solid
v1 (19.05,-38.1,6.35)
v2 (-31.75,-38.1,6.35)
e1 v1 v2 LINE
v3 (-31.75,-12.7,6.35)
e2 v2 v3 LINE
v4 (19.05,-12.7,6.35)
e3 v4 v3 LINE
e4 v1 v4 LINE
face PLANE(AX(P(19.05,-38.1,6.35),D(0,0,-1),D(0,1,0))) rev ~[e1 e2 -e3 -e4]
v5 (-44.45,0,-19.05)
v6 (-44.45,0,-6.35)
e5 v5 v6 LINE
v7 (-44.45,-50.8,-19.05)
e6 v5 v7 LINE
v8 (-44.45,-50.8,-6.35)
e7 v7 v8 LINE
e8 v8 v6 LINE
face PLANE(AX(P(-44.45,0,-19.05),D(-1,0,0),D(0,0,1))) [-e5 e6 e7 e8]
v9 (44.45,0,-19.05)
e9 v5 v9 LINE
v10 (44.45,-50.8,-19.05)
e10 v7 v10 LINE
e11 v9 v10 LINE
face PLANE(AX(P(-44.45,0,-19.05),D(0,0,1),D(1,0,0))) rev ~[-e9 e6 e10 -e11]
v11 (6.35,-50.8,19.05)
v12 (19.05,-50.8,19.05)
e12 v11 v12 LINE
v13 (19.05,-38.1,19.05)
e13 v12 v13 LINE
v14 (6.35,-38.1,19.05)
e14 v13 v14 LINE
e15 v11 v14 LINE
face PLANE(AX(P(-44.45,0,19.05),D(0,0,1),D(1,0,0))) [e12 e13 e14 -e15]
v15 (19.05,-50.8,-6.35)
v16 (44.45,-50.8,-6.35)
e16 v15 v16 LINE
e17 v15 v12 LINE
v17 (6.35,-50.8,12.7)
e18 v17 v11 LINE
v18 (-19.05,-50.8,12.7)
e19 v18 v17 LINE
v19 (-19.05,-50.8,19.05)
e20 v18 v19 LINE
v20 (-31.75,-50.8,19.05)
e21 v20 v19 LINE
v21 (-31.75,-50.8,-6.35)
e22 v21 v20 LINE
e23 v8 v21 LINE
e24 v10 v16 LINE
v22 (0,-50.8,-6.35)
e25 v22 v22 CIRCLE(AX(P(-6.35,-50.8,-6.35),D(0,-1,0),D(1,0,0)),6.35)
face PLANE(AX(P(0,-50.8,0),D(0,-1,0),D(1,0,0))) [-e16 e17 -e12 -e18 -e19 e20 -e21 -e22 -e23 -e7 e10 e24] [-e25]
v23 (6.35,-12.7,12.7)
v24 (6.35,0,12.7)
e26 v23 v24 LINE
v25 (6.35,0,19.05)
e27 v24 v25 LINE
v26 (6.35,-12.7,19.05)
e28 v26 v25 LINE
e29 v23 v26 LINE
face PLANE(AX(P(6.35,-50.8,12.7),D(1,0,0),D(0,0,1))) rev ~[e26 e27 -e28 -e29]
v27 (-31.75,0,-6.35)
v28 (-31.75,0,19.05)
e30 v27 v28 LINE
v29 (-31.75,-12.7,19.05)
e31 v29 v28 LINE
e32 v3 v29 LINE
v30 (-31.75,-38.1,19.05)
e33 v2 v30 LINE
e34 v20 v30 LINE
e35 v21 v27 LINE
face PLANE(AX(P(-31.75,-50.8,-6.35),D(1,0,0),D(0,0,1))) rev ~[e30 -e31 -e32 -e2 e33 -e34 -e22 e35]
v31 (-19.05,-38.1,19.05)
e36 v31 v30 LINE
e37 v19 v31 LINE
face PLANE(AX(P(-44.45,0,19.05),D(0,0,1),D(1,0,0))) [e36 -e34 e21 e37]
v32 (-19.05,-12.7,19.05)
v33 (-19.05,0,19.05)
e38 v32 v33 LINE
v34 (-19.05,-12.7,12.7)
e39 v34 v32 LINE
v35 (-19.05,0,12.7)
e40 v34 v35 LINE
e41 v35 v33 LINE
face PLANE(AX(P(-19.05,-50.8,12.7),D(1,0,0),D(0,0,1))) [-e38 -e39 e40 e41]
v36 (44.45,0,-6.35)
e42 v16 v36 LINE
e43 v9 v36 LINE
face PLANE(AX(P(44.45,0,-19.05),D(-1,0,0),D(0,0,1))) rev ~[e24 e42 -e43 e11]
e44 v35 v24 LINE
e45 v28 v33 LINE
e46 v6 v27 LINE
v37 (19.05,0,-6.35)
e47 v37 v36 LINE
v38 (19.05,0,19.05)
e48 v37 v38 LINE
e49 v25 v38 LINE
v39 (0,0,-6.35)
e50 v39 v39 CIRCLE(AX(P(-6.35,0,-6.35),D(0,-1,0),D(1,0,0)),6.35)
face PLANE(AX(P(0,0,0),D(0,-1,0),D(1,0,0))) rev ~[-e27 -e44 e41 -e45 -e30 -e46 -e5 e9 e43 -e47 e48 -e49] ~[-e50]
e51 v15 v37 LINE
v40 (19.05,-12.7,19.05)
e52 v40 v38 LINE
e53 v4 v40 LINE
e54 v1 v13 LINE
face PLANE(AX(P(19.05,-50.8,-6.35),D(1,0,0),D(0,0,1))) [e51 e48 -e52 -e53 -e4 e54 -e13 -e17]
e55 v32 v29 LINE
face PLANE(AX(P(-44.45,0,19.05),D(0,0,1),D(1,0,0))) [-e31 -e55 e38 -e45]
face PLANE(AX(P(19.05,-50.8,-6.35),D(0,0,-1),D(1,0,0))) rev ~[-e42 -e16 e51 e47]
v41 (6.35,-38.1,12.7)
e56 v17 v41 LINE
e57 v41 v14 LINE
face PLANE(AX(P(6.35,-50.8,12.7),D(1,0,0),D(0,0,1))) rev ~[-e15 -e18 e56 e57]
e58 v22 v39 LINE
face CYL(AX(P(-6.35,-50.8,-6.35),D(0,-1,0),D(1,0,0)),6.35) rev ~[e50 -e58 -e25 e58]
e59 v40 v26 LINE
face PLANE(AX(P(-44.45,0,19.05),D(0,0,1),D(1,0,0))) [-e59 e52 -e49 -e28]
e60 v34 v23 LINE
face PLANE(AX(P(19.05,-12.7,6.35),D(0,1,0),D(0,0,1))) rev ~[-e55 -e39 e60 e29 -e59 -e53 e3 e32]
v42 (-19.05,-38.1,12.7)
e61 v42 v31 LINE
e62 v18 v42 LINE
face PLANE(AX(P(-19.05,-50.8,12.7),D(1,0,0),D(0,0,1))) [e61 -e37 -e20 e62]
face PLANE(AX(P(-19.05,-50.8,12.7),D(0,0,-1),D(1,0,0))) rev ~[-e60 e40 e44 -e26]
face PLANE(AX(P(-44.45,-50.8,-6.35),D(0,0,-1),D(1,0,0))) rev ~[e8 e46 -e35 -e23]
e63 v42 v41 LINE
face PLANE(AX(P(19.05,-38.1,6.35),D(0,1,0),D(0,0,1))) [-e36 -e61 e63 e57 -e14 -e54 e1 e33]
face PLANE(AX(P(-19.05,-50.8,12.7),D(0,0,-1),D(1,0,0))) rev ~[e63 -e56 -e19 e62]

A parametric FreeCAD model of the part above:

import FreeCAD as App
import Part
import Sketcher

V = App.Vector
Q = App.Units.Quantity

doc = App.newDocument("Part")
body = doc.addObject("PartDesign::Body", "Body")

sketch1 = body.newObject("Sketcher::SketchObject", "Sketch")
sketch1.AttachmentSupport = (doc.getObject("XZ_Plane"), [""])
sketch1.MapMode = "FlatFace"
sketch1.addGeometry(Part.LineSegment(V(-44.45, 19.05, 0), V(-44.45, -19.05, 0)), False)
sketch1.addGeometry(Part.LineSegment(V(-44.45, -19.05, 0), V(44.45, -19.05, 0)), False)
sketch1.addGeometry(Part.LineSegment(V(44.45, -19.05, 0), V(44.45, 19.05, 0)), False)
sketch1.addGeometry(Part.LineSegment(V(44.45, 19.05, 0), V(-44.45, 19.05, 0)), False)
sketch1.addConstraint(Sketcher.Constraint("Coincident", 0, 2, 1, 1))
sketch1.addConstraint(Sketcher.Constraint("Coincident", 1, 2, 2, 1))
sketch1.addConstraint(Sketcher.Constraint("Coincident", 2, 2, 3, 1))
sketch1.addConstraint(Sketcher.Constraint("Coincident", 3, 2, 0, 1))
sketch1.addConstraint(Sketcher.Constraint("Vertical", 0))
sketch1.addConstraint(Sketcher.Constraint("Horizontal", 1))
sketch1.addConstraint(Sketcher.Constraint("Vertical", 2))
sketch1.addConstraint(Sketcher.Constraint("Horizontal", 3))
sketch1.addConstraint(Sketcher.Constraint("Symmetric", 0, 2, 2, 2, -1, 1))
sketch1.addConstraint(Sketcher.Constraint("DistanceX", 1, 1, 1, 2, Q("3.5 in")))
sketch1.addConstraint(Sketcher.Constraint("DistanceY", 0, 2, 0, 1, Q("1.5 in")))
pad1 = body.newObject("PartDesign::Pad", "Pad")
pad1.Profile = sketch1
pad1.Length = Q("2 in")

sketch2 = body.newObject("Sketcher::SketchObject", "Sketch001")
sketch2.AttachmentSupport = (doc.getObject("XZ_Plane"), [""])
sketch2.MapMode = "FlatFace"
sketch2.AttachmentOffset = App.Placement(V(0, 0, 2 * 25.4), App.Rotation())
sketch2.addGeometry(Part.LineSegment(V(-44.45, 19.05, 0), V(-44.45, -6.35, 0)), False)
sketch2.addGeometry(Part.LineSegment(V(-44.45, -6.35, 0), V(-31.75, -6.35, 0)), False)
sketch2.addGeometry(Part.LineSegment(V(-31.75, -6.35, 0), V(-31.75, 19.05, 0)), False)
sketch2.addGeometry(Part.LineSegment(V(-31.75, 19.05, 0), V(-44.45, 19.05, 0)), False)
sketch2.addConstraint(Sketcher.Constraint("Coincident", 0, 2, 1, 1))
sketch2.addConstraint(Sketcher.Constraint("Coincident", 1, 2, 2, 1))
sketch2.addConstraint(Sketcher.Constraint("Coincident", 2, 2, 3, 1))
sketch2.addConstraint(Sketcher.Constraint("Coincident", 3, 2, 0, 1))
sketch2.addConstraint(Sketcher.Constraint("Vertical", 0))
sketch2.addConstraint(Sketcher.Constraint("Horizontal", 1))
sketch2.addConstraint(Sketcher.Constraint("Vertical", 2))
sketch2.addConstraint(Sketcher.Constraint("Horizontal", 3))
sketch2.addConstraint(Sketcher.Constraint("DistanceY", 0, 2, 0, 1, Q("1 in")))
sketch2.addConstraint(Sketcher.Constraint("DistanceX", 1, 1, 1, 2, Q("0.5 in")))
sketch2.addConstraint(Sketcher.Constraint("DistanceX", 0, 2, -1, 1, Q("1.75 in")))
sketch2.addConstraint(Sketcher.Constraint("DistanceY", 0, 2, -1, 1, Q("0.25 in")))
pocket1 = body.newObject("PartDesign::Pocket", "Pocket")
pocket1.Profile = sketch2
pocket1.Length = Q("2 in")

sketch3 = body.newObject("Sketcher::SketchObject", "Sketch002")
sketch3.AttachmentSupport = (doc.getObject("XZ_Plane"), [""])
sketch3.MapMode = "FlatFace"
sketch3.AttachmentOffset = App.Placement(V(0, 0, 2 * 25.4), App.Rotation())
sketch3.addGeometry(Part.LineSegment(V(-19.05, 19.05, 0), V(-19.05, 12.7, 0)), False)
sketch3.addGeometry(Part.LineSegment(V(-19.05, 12.7, 0), V(6.35, 12.7, 0)), False)
sketch3.addGeometry(Part.LineSegment(V(6.35, 12.7, 0), V(6.35, 19.05, 0)), False)
sketch3.addGeometry(Part.LineSegment(V(6.35, 19.05, 0), V(-19.05, 19.05, 0)), False)
sketch3.addConstraint(Sketcher.Constraint("Coincident", 0, 2, 1, 1))
sketch3.addConstraint(Sketcher.Constraint("Coincident", 1, 2, 2, 1))
sketch3.addConstraint(Sketcher.Constraint("Coincident", 2, 2, 3, 1))
sketch3.addConstraint(Sketcher.Constraint("Coincident", 3, 2, 0, 1))
sketch3.addConstraint(Sketcher.Constraint("Vertical", 0))
sketch3.addConstraint(Sketcher.Constraint("Horizontal", 1))
sketch3.addConstraint(Sketcher.Constraint("Vertical", 2))
sketch3.addConstraint(Sketcher.Constraint("Horizontal", 3))
sketch3.addConstraint(Sketcher.Constraint("DistanceX", 1, 1, 1, 2, Q("1 in")))
sketch3.addConstraint(Sketcher.Constraint("DistanceY", 0, 2, 0, 1, Q("0.25 in")))
sketch3.addConstraint(Sketcher.Constraint("DistanceY", -1, 1, 0, 2, Q("0.5 in")))
sketch3.addConstraint(Sketcher.Constraint("DistanceX", 0, 2, -1, 1, Q("0.75 in")))
pocket2 = body.newObject("PartDesign::Pocket", "Pocket001")
pocket2.Profile = sketch3
pocket2.Length = Q("2 in")

sketch4 = body.newObject("Sketcher::SketchObject", "Sketch003")
sketch4.AttachmentSupport = (doc.getObject("XZ_Plane"), [""])
sketch4.MapMode = "FlatFace"
sketch4.AttachmentOffset = App.Placement(V(0, 0, 2 * 25.4), App.Rotation())
sketch4.addGeometry(Part.Circle(V(-6.35, -6.35, 0), V(0, 0, 1), 6.35), False)
sketch4.addConstraint(Sketcher.Constraint("Diameter", 0, Q("0.5 in")))
sketch4.addConstraint(Sketcher.Constraint("DistanceX", 0, 3, -1, 1, Q("0.25 in")))
sketch4.addConstraint(Sketcher.Constraint("DistanceY", 0, 3, -1, 1, Q("0.25 in")))
pad2 = body.newObject("PartDesign::Pad", "Pad001")
pad2.Profile = sketch4
pad2.Length = Q("2 in")

sketch5 = body.newObject("Sketcher::SketchObject", "Sketch004")
sketch5.AttachmentSupport = (doc.getObject("XZ_Plane"), [""])
sketch5.MapMode = "FlatFace"
sketch5.AttachmentOffset = App.Placement(V(0, 0, 4 * 25.4), App.Rotation())
sketch5.addGeometry(Part.Circle(V(-6.35, -6.35, 0), V(0, 0, 1), 6.35), False)
sketch5.addConstraint(Sketcher.Constraint("Diameter", 0, Q("0.5 in")))
sketch5.addConstraint(Sketcher.Constraint("DistanceX", 0, 3, -1, 1, Q("0.25 in")))
sketch5.addConstraint(Sketcher.Constraint("DistanceY", 0, 3, -1, 1, Q("0.25 in")))
pocket3 = body.newObject("PartDesign::Pocket", "Pocket002")
pocket3.Profile = sketch5
pocket3.Length = Q("2 in")

sketch6 = body.newObject("Sketcher::SketchObject", "Sketch005")
sketch6.AttachmentSupport = (doc.getObject("XZ_Plane"), [""])
sketch6.MapMode = "FlatFace"
sketch6.AttachmentOffset = App.Placement(V(0, 0, 2 * 25.4), App.Rotation())
sketch6.addGeometry(Part.Circle(V(-6.35, -6.35, 0), V(0, 0, 1), 6.35), False)
sketch6.addConstraint(Sketcher.Constraint("Diameter", 0, Q("0.5 in")))
sketch6.addConstraint(Sketcher.Constraint("DistanceX", 0, 3, -1, 1, Q("0.25 in")))
sketch6.addConstraint(Sketcher.Constraint("DistanceY", 0, 3, -1, 1, Q("0.25 in")))
pocket4 = body.newObject("PartDesign::Pocket", "Pocket003")
pocket4.Profile = sketch6
pocket4.Length = Q("2 in")

sketch7 = body.newObject("Sketcher::SketchObject", "Sketch006")
sketch7.AttachmentSupport = (doc.getObject("XZ_Plane"), [""])
sketch7.MapMode = "FlatFace"
sketch7.AttachmentOffset = App.Placement(V(0, 0, 2 * 25.4), App.Rotation())
sketch7.addGeometry(Part.LineSegment(V(19.05, 19.05, 0), V(19.05, -6.35, 0)), False)
sketch7.addGeometry(Part.LineSegment(V(19.05, -6.35, 0), V(44.45, -6.35, 0)), False)
sketch7.addGeometry(Part.LineSegment(V(44.45, -6.35, 0), V(44.45, 19.05, 0)), False)
sketch7.addGeometry(Part.LineSegment(V(44.45, 19.05, 0), V(19.05, 19.05, 0)), False)
sketch7.addConstraint(Sketcher.Constraint("Coincident", 0, 2, 1, 1))
sketch7.addConstraint(Sketcher.Constraint("Coincident", 1, 2, 2, 1))
sketch7.addConstraint(Sketcher.Constraint("Coincident", 2, 2, 3, 1))
sketch7.addConstraint(Sketcher.Constraint("Coincident", 3, 2, 0, 1))
sketch7.addConstraint(Sketcher.Constraint("Vertical", 0))
sketch7.addConstraint(Sketcher.Constraint("Horizontal", 1))
sketch7.addConstraint(Sketcher.Constraint("Vertical", 2))
sketch7.addConstraint(Sketcher.Constraint("Horizontal", 3))
sketch7.addConstraint(Sketcher.Constraint("Equal", 3, 0))
sketch7.addConstraint(Sketcher.Constraint("DistanceX", 1, 1, 1, 2, Q("1 in")))
sketch7.addConstraint(Sketcher.Constraint("DistanceX", -1, 1, 0, 2, Q("0.75 in")))
sketch7.addConstraint(Sketcher.Constraint("DistanceY", 0, 2, -1, 1, Q("0.25 in")))
pocket5 = body.newObject("PartDesign::Pocket", "Pocket004")
pocket5.Profile = sketch7
pocket5.Length = Q("2 in")

sketch8 = body.newObject("Sketcher::SketchObject", "Sketch007")
sketch8.AttachmentSupport = (doc.getObject("YZ_Plane"), [""])
sketch8.MapMode = "FlatFace"
sketch8.AttachmentOffset = App.Placement(V(0, 0, 0.75 * 25.4), App.Rotation())
sketch8.addGeometry(Part.LineSegment(V(-38.1, 19.05, 0), V(-38.1, 6.35, 0)), False)
sketch8.addGeometry(Part.LineSegment(V(-38.1, 6.35, 0), V(-12.7, 6.35, 0)), False)
sketch8.addGeometry(Part.LineSegment(V(-12.7, 6.35, 0), V(-12.7, 19.05, 0)), False)
sketch8.addGeometry(Part.LineSegment(V(-12.7, 19.05, 0), V(-38.1, 19.05, 0)), False)
sketch8.addConstraint(Sketcher.Constraint("Coincident", 0, 2, 1, 1))
sketch8.addConstraint(Sketcher.Constraint("Coincident", 1, 2, 2, 1))
sketch8.addConstraint(Sketcher.Constraint("Coincident", 2, 2, 3, 1))
sketch8.addConstraint(Sketcher.Constraint("Coincident", 3, 2, 0, 1))
sketch8.addConstraint(Sketcher.Constraint("Vertical", 0))
sketch8.addConstraint(Sketcher.Constraint("Horizontal", 1))
sketch8.addConstraint(Sketcher.Constraint("Vertical", 2))
sketch8.addConstraint(Sketcher.Constraint("Horizontal", 3))
sketch8.addConstraint(Sketcher.Constraint("DistanceX", 1, 1, 1, 2, Q("1 in")))
sketch8.addConstraint(Sketcher.Constraint("DistanceY", 0, 2, 0, 1, Q("0.5 in")))
sketch8.addConstraint(Sketcher.Constraint("DistanceX", 0, 2, -1, 1, Q("1.5 in")))
sketch8.addConstraint(Sketcher.Constraint("DistanceY", -1, 1, 0, 2, Q("0.25 in")))
pocket6 = body.newObject("PartDesign::Pocket", "Pocket005")
pocket6.Profile = sketch8
pocket6.Length = Q("2 in")

doc.recompute()
